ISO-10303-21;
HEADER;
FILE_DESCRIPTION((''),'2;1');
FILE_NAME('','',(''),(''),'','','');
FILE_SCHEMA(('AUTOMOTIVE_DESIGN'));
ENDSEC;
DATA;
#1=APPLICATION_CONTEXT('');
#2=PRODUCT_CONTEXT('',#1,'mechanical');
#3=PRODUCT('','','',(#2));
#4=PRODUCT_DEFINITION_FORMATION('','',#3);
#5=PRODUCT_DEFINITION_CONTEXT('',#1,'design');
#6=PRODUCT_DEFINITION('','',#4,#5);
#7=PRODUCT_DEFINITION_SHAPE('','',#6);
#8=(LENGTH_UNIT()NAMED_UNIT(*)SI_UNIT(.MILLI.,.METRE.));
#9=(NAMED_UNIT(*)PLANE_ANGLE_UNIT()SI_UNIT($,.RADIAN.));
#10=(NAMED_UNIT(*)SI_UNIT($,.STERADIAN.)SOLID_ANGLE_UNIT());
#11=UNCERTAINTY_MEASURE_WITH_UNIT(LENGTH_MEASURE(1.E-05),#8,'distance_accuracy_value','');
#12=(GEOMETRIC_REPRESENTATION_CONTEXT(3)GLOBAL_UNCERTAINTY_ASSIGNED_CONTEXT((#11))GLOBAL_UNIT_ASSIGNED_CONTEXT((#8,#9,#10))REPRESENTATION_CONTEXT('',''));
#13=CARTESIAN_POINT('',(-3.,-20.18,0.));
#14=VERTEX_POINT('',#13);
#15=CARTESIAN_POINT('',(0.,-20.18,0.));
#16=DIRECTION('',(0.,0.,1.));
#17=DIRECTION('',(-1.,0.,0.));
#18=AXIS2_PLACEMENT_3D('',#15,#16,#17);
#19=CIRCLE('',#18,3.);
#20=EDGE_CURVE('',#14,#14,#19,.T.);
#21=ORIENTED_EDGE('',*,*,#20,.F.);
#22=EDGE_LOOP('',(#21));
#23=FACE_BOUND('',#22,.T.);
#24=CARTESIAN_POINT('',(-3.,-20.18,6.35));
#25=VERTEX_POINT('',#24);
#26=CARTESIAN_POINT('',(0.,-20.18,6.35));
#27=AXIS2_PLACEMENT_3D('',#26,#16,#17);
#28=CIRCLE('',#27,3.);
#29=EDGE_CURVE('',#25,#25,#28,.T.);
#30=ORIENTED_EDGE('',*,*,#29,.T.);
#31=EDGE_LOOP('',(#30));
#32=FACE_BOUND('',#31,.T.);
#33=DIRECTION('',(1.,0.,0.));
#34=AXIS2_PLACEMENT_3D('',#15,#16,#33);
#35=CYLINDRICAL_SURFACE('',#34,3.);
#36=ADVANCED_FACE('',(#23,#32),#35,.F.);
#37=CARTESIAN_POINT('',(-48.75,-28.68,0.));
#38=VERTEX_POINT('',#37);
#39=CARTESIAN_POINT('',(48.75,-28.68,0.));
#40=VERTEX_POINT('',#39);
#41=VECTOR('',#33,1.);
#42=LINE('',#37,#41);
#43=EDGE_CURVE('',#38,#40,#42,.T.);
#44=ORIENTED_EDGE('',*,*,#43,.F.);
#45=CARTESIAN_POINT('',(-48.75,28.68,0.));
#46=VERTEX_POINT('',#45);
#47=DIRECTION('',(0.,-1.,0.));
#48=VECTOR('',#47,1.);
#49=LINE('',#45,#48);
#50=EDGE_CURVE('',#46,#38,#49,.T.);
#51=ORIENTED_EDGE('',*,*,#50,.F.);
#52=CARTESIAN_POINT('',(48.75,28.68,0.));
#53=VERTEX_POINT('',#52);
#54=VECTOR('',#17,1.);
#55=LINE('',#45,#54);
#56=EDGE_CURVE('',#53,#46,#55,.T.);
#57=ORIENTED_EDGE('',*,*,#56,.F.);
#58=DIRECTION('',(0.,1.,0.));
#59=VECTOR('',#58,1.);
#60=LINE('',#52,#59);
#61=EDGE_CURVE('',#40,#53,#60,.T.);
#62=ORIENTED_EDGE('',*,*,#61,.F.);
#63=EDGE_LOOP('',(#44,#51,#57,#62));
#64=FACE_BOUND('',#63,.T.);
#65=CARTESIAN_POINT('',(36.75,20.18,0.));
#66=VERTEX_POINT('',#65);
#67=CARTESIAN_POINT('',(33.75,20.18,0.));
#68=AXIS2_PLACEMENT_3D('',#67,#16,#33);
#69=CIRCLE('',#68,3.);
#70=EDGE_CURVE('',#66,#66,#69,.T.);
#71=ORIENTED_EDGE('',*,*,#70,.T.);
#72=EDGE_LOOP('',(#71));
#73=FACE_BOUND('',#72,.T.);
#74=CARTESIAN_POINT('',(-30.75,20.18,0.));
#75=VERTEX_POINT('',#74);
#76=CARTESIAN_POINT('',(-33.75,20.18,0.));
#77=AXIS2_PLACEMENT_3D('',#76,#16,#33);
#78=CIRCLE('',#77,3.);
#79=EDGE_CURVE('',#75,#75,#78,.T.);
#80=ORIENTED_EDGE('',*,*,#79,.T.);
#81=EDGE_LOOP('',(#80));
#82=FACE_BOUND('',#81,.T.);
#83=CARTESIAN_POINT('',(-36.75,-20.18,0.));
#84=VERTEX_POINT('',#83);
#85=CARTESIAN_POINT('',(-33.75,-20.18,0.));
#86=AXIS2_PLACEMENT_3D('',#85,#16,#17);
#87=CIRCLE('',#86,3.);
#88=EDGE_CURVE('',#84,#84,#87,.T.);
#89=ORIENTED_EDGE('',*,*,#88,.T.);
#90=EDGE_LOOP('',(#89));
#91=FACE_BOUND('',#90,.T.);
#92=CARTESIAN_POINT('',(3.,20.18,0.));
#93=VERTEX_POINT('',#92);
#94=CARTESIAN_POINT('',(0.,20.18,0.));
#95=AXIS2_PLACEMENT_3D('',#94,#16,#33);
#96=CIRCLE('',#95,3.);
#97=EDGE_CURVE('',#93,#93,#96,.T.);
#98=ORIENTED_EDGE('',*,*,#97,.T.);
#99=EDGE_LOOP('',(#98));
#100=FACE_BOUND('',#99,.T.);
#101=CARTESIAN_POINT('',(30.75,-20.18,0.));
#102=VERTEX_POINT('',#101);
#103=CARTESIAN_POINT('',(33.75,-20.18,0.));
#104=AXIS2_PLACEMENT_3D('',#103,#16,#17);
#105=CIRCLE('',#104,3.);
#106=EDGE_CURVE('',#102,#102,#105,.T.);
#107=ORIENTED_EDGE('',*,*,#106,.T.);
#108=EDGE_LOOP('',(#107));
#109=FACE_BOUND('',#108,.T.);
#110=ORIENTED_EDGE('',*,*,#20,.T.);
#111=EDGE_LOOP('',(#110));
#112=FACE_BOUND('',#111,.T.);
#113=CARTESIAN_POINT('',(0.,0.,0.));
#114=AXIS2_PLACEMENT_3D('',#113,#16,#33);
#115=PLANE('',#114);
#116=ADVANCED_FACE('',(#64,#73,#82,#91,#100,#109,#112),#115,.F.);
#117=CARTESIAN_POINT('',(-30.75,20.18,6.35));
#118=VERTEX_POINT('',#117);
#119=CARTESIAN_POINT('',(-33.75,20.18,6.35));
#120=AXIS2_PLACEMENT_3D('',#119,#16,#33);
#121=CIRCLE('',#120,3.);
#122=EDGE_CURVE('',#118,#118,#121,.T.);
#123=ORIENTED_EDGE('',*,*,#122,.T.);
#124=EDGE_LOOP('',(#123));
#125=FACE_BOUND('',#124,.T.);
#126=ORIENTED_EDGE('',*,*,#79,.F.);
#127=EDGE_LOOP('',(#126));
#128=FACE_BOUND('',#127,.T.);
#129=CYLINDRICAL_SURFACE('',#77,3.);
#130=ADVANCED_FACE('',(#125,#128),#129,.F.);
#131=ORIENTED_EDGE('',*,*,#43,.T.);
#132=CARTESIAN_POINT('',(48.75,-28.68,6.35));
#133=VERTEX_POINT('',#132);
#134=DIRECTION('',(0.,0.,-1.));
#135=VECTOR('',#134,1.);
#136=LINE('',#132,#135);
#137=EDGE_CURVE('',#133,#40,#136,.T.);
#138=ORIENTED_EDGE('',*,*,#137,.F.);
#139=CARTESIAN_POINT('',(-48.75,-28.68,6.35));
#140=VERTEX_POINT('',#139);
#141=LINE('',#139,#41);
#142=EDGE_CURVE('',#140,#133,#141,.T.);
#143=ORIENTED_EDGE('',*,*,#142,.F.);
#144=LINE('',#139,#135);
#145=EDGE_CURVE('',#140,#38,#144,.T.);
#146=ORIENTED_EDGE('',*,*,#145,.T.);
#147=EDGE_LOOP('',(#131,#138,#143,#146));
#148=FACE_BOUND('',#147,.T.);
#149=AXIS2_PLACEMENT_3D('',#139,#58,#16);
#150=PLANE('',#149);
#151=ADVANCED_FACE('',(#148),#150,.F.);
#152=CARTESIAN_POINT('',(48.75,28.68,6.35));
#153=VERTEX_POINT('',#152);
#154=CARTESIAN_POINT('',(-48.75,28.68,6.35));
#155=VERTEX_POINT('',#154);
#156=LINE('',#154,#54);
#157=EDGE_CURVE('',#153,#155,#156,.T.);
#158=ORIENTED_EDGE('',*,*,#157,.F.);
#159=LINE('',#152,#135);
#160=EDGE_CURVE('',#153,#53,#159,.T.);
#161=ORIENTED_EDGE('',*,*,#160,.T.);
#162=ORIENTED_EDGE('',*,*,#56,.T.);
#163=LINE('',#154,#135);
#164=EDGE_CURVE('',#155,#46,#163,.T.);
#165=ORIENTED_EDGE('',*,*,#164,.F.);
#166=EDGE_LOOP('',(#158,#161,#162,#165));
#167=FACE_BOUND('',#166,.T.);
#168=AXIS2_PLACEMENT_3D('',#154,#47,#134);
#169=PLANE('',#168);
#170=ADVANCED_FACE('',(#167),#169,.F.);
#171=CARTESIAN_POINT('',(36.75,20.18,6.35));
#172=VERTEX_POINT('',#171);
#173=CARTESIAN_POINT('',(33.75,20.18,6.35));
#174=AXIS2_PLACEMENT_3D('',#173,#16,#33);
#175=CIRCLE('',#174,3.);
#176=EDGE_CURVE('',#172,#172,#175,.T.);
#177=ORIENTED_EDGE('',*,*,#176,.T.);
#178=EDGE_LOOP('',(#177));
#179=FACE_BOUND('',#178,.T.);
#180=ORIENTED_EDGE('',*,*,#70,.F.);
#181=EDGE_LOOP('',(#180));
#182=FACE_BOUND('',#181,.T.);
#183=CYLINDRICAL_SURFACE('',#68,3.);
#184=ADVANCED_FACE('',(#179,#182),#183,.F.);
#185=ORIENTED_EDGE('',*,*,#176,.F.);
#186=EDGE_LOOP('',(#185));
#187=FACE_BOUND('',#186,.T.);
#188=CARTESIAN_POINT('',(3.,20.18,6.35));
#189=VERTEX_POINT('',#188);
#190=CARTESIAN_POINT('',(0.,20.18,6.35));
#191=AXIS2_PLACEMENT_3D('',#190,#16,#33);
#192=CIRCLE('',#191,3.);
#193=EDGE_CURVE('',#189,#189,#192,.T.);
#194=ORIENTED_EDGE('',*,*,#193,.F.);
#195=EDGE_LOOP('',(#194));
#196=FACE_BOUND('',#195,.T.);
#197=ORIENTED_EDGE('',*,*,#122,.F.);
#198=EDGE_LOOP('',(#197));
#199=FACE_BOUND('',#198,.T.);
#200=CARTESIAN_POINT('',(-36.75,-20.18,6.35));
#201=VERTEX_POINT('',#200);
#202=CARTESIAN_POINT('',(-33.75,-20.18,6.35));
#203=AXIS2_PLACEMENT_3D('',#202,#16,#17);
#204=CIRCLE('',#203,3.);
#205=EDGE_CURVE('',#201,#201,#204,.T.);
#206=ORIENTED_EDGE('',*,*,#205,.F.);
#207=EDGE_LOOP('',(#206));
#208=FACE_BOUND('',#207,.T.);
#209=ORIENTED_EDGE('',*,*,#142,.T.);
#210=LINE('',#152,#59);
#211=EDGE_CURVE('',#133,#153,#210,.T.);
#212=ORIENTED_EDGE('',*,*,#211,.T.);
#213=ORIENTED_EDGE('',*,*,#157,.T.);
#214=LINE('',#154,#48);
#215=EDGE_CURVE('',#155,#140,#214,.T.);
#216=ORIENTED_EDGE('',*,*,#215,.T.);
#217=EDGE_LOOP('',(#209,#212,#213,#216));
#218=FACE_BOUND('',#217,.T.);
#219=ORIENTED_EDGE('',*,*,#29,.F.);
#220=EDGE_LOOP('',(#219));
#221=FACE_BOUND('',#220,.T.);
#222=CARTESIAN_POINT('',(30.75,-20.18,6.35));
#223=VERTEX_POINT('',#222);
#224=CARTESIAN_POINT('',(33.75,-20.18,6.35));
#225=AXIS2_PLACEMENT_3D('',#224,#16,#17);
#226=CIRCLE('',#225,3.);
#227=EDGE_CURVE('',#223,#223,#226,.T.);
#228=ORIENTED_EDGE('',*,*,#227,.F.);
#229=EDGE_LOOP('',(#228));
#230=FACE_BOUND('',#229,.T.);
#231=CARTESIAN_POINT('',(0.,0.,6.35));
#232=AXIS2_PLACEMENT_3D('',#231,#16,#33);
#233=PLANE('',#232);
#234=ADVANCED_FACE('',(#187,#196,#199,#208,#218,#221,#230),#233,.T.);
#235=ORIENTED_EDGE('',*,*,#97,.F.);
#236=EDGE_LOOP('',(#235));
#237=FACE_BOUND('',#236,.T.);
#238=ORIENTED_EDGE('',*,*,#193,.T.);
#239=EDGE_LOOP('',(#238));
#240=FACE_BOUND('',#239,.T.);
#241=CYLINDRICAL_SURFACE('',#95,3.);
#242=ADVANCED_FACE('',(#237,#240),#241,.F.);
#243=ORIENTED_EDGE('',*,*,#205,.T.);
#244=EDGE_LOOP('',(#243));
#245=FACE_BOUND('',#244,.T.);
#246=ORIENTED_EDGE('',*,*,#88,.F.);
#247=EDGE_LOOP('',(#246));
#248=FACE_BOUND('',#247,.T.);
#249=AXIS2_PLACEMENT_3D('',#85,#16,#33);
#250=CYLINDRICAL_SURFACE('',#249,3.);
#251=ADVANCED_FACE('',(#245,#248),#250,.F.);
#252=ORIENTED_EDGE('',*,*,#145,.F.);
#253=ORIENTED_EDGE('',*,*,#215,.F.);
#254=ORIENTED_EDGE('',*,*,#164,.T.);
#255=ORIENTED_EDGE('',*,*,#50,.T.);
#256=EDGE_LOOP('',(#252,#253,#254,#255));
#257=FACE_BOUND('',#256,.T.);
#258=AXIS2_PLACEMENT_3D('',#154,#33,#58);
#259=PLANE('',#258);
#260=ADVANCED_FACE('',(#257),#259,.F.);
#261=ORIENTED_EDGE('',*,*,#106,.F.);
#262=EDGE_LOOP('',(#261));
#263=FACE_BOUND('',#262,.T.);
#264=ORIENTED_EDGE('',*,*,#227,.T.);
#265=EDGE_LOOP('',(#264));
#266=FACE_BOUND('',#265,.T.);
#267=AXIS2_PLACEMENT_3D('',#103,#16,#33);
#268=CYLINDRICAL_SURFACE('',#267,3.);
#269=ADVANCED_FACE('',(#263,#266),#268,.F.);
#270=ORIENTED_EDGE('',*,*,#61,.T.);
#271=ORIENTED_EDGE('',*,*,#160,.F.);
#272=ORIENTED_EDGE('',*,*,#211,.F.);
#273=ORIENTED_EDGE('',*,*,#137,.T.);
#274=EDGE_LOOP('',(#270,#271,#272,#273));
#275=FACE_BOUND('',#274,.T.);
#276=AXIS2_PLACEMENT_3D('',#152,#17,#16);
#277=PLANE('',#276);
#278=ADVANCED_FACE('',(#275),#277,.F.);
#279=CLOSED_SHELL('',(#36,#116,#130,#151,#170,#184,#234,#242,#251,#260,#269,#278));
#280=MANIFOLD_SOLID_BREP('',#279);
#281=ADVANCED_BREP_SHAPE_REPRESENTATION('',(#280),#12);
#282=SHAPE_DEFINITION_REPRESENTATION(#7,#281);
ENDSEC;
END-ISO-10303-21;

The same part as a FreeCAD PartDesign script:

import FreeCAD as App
import Part
import Sketcher
Q = App.Units.Quantity

doc = App.newDocument("Part")
body = doc.addObject("PartDesign::Body", "Body")

sketch1 = doc.addObject("Sketcher::SketchObject", "Sketch")
body.addObject(sketch1)
sketch1.AttachmentSupport = (doc.XY_Plane, [""])
sketch1.MapMode = "FlatFace"
sketch1.addGeometry([
    Part.LineSegment(App.Vector(-49, 29, 0), App.Vector(-49, -29, 0)),
    Part.LineSegment(App.Vector(-49, -29, 0), App.Vector(49, -29, 0)),
    Part.LineSegment(App.Vector(49, -29, 0), App.Vector(49, 29, 0)),
    Part.LineSegment(App.Vector(49, 29, 0), App.Vector(-49, 29, 0)),
], False)
sketch1.addConstraint([
    Sketcher.Constraint("Coincident", 0, 2, 1, 1),
    Sketcher.Constraint("Coincident", 1, 2, 2, 1),
    Sketcher.Constraint("Coincident", 2, 2, 3, 1),
    Sketcher.Constraint("Coincident", 3, 2, 0, 1),
    Sketcher.Constraint("Vertical", 0),
    Sketcher.Constraint("Horizontal", 1),
    Sketcher.Constraint("Vertical", 2),
    Sketcher.Constraint("Horizontal", 3),
    Sketcher.Constraint("Symmetric", 0, 2, 2, 2, -1, 1),
    Sketcher.Constraint("DistanceX", 1, 1, 1, 2, Q("97.5 mm")),
    Sketcher.Constraint("DistanceY", 0, 2, 0, 1, Q("57.36 mm")),
])
pad1 = doc.addObject("PartDesign::Pad", "Pad")
body.addObject(pad1)
pad1.Profile = sketch1
pad1.Length = 6.35

sketch2 = doc.addObject("Sketcher::SketchObject", "Sketch001")
body.addObject(sketch2)
sketch2.AttachmentSupport = (doc.XY_Plane, [""])
sketch2.MapMode = "FlatFace"
sketch2.AttachmentOffset = App.Placement(App.Vector(0, 0, 6.35), App.Rotation())
sketch2.addGeometry([
    Part.Circle(App.Vector(-33.8, 20.2, 0), App.Vector(0, 0, 1), 3),
    Part.Circle(App.Vector(0, 20.2, 0), App.Vector(0, 0, 1), 3),
    Part.Circle(App.Vector(33.8, 20.2, 0), App.Vector(0, 0, 1), 3),
    Part.Circle(App.Vector(33.8, -20.2, 0), App.Vector(0, 0, 1), 3),
    Part.Circle(App.Vector(0, -20.2, 0), App.Vector(0, 0, 1), 3),
    Part.Circle(App.Vector(-33.8, -20.2, 0), App.Vector(0, 0, 1), 3),
], False)
sketch2.addConstraint([
    Sketcher.Constraint("Equal", 0, 1),
    Sketcher.Constraint("Equal", 1, 2),
    Sketcher.Constraint("Equal", 2, 3),
    Sketcher.Constraint("Equal", 3, 4),
    Sketcher.Constraint("Equal", 4, 5),
    Sketcher.Constraint("Symmetric", 0, 3, 3, 3, -1, 1),
    Sketcher.Constraint("Symmetric", 1, 3, 4, 3, -1, 1),
    Sketcher.Constraint("Symmetric", 2, 3, 5, 3, -1, 1),
    Sketcher.Constraint("Symmetric", 0, 3, 2, 3, -2),
    Sketcher.Constraint("PointOnObject", 1, 3, -2),
    Sketcher.Constraint("Horizontal", 0, 3, 1, 3),
    Sketcher.Constraint("Diameter", 0, Q("6 mm")),
    Sketcher.Constraint("DistanceX", 0, 3, 2, 3, Q("67.5 mm")),
    Sketcher.Constraint("DistanceY", -1, 1, 0, 3, Q("20.18 mm")),
])
pocket1 = doc.addObject("PartDesign::Pocket", "Pocket")
body.addObject(pocket1)
pocket1.Profile = sketch2
pocket1.Type = "ThroughAll"

doc.recompute()
